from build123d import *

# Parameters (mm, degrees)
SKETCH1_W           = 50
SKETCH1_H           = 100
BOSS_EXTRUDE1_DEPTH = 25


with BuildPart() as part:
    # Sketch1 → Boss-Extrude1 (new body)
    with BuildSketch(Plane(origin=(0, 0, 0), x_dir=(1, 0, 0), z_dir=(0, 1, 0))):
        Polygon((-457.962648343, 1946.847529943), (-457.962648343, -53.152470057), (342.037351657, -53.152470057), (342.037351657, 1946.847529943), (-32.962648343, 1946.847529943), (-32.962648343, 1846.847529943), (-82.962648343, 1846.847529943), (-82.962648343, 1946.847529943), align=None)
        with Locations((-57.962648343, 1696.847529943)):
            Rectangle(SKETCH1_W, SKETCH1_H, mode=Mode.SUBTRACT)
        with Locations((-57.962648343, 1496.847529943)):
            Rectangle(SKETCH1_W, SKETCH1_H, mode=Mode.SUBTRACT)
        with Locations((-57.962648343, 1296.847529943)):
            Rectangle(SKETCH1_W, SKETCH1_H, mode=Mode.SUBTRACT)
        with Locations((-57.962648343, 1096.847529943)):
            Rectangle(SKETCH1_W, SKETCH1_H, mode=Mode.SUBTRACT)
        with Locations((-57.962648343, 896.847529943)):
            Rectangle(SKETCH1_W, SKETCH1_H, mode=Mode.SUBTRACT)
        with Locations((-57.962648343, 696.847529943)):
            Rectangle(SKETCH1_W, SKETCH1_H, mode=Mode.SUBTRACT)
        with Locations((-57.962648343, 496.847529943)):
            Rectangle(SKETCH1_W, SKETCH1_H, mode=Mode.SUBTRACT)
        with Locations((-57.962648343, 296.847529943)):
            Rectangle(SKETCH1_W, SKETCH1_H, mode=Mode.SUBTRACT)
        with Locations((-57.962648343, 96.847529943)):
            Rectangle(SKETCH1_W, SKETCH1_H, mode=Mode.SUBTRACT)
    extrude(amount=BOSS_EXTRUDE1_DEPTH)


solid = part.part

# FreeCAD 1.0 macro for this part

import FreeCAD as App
import Part
import Sketcher
Q = App.Units.Quantity

doc = App.newDocument("Part")
body = doc.addObject("PartDesign::Body", "Body")

# Sketch on XZ plane
sketch1 = body.newObject("Sketcher::SketchObject", "Sketch")
sketch1.AttachmentSupport = (doc.getObject("XZ_Plane"), [""])
sketch1.MapMode = "FlatFace"
sketch1.addGeometry(Part.LineSegment(App.Vector(-457.962648, -1946.84753, 0), App.Vector(-457.962648, 53.15247, 0)), False)
sketch1.addGeometry(Part.LineSegment(App.Vector(-457.962648, 53.15247, 0), App.Vector(342.037352, 53.15247, 0)), False)
sketch1.addGeometry(Part.LineSegment(App.Vector(342.037352, 53.15247, 0), App.Vector(342.037352, -1946.84753, 0)), False)
sketch1.addGeometry(Part.LineSegment(App.Vector(342.037352, -1946.84753, 0), App.Vector(-32.962648, -1946.84753, 0)), False)
sketch1.addGeometry(Part.LineSegment(App.Vector(-32.962648, -1946.84753, 0), App.Vector(-32.962648, -1846.84753, 0)), False)
sketch1.addGeometry(Part.LineSegment(App.Vector(-32.962648, -1846.84753, 0), App.Vector(-82.962648, -1846.84753, 0)), False)
sketch1.addGeometry(Part.LineSegment(App.Vector(-82.962648, -1846.84753, 0), App.Vector(-82.962648, -1946.84753, 0)), False)
sketch1.addGeometry(Part.LineSegment(App.Vector(-82.962648, -1946.84753, 0), App.Vector(-457.962648, -1946.84753, 0)), False)
sketch1.addGeometry(Part.LineSegment(App.Vector(-32.962648, -46.84753, 0), App.Vector(-82.962648, -46.84753, 0)), False)
sketch1.addGeometry(Part.LineSegment(App.Vector(-82.962648, -46.84753, 0), App.Vector(-82.962648, -146.84753, 0)), False)
sketch1.addGeometry(Part.LineSegment(App.Vector(-82.962648, -146.84753, 0), App.Vector(-32.962648, -146.84753, 0)), False)
sketch1.addGeometry(Part.LineSegment(App.Vector(-32.962648, -146.84753, 0), App.Vector(-32.962648, -46.84753, 0)), False)
sketch1.addGeometry(Part.LineSegment(App.Vector(-32.962648, -246.84753, 0), App.Vector(-82.962648, -246.84753, 0)), False)
sketch1.addGeometry(Part.LineSegment(App.Vector(-82.962648, -246.84753, 0), App.Vector(-82.962648, -346.84753, 0)), False)
sketch1.addGeometry(Part.LineSegment(App.Vector(-82.962648, -346.84753, 0), App.Vector(-32.962648, -346.84753, 0)), False)
sketch1.addGeometry(Part.LineSegment(App.Vector(-32.962648, -346.84753, 0), App.Vector(-32.962648, -246.84753, 0)), False)
sketch1.addGeometry(Part.LineSegment(App.Vector(-32.962648, -446.84753, 0), App.Vector(-82.962648, -446.84753, 0)), False)
sketch1.addGeometry(Part.LineSegment(App.Vector(-82.962648, -446.84753, 0), App.Vector(-82.962648, -546.84753, 0)), False)
sketch1.addGeometry(Part.LineSegment(App.Vector(-82.962648, -546.84753, 0), App.Vector(-32.962648, -546.84753, 0)), False)
sketch1.addGeometry(Part.LineSegment(App.Vector(-32.962648, -546.84753, 0), App.Vector(-32.962648, -446.84753, 0)), False)
sketch1.addGeometry(Part.LineSegment(App.Vector(-32.962648, -646.84753, 0), App.Vector(-82.962648, -646.84753, 0)), False)
sketch1.addGeometry(Part.LineSegment(App.Vector(-82.962648, -646.84753, 0), App.Vector(-82.962648, -746.84753, 0)), False)
sketch1.addGeometry(Part.LineSegment(App.Vector(-82.962648, -746.84753, 0), App.Vector(-32.962648, -746.84753, 0)), False)
sketch1.addGeometry(Part.LineSegment(App.Vector(-32.962648, -746.84753, 0), App.Vector(-32.962648, -646.84753, 0)), False)
sketch1.addGeometry(Part.LineSegment(App.Vector(-32.962648, -846.84753, 0), App.Vector(-82.962648, -846.84753, 0)), False)
sketch1.addGeometry(Part.LineSegment(App.Vector(-82.962648, -846.84753, 0), App.Vector(-82.962648, -946.84753, 0)), False)
sketch1.addGeometry(Part.LineSegment(App.Vector(-82.962648, -946.84753, 0), App.Vector(-32.962648, -946.84753, 0)), False)
sketch1.addGeometry(Part.LineSegment(App.Vector(-32.962648, -946.84753, 0), App.Vector(-32.962648, -846.84753, 0)), False)
sketch1.addGeometry(Part.LineSegment(App.Vector(-32.962648, -1046.84753, 0), App.Vector(-82.962648, -1046.84753, 0)), False)
sketch1.addGeometry(Part.LineSegment(App.Vector(-82.962648, -1046.84753, 0), App.Vector(-82.962648, -1146.84753, 0)), False)
sketch1.addGeometry(Part.LineSegment(App.Vector(-82.962648, -1146.84753, 0), App.Vector(-32.962648, -1146.84753, 0)), False)
sketch1.addGeometry(Part.LineSegment(App.Vector(-32.962648, -1146.84753, 0), App.Vector(-32.962648, -1046.84753, 0)), False)
sketch1.addGeometry(Part.LineSegment(App.Vector(-32.962648, -1246.84753, 0), App.Vector(-82.962648, -1246.84753, 0)), False)
sketch1.addGeometry(Part.LineSegment(App.Vector(-82.962648, -1246.84753, 0), App.Vector(-82.962648, -1346.84753, 0)), False)
sketch1.addGeometry(Part.LineSegment(App.Vector(-82.962648, -1346.84753, 0), App.Vector(-32.962648, -1346.84753, 0)), False)
sketch1.addGeometry(Part.LineSegment(App.Vector(-32.962648, -1346.84753, 0), App.Vector(-32.962648, -1246.84753, 0)), False)
sketch1.addGeometry(Part.LineSegment(App.Vector(-32.962648, -1446.84753, 0), App.Vector(-82.962648, -1446.84753, 0)), False)
sketch1.addGeometry(Part.LineSegment(App.Vector(-82.962648, -1446.84753, 0), App.Vector(-82.962648, -1546.84753, 0)), False)
sketch1.addGeometry(Part.LineSegment(App.Vector(-82.962648, -1546.84753, 0), App.Vector(-32.962648, -1546.84753, 0)), False)
sketch1.addGeometry(Part.LineSegment(App.Vector(-32.962648, -1546.84753, 0), App.Vector(-32.962648, -1446.84753, 0)), False)
sketch1.addGeometry(Part.LineSegment(App.Vector(-32.962648, -1646.84753, 0), App.Vector(-82.962648, -1646.84753, 0)), False)
sketch1.addGeometry(Part.LineSegment(App.Vector(-82.962648, -1646.84753, 0), App.Vector(-82.962648, -1746.84753, 0)), False)
sketch1.addGeometry(Part.LineSegment(App.Vector(-82.962648, -1746.84753, 0), App.Vector(-32.962648, -1746.84753, 0)), False)
sketch1.addGeometry(Part.LineSegment(App.Vector(-32.962648, -1746.84753, 0), App.Vector(-32.962648, -1646.84753, 0)), False)
sketch1.addConstraint(Sketcher.Constraint("Coincident", 0, 2, 1, 1))
sketch1.addConstraint(Sketcher.Constraint("Coincident", 1, 2, 2, 1))
sketch1.addConstraint(Sketcher.Constraint("Coincident", 2, 2, 3, 1))
sketch1.addConstraint(Sketcher.Constraint("Coincident", 3, 2, 4, 1))
sketch1.addConstraint(Sketcher.Constraint("Coincident", 4, 2, 5, 1))
sketch1.addConstraint(Sketcher.Constraint("Coincident", 5, 2, 6, 1))
sketch1.addConstraint(Sketcher.Constraint("Coincident", 6, 2, 7, 1))
sketch1.addConstraint(Sketcher.Constraint("Coincident", 7, 2, 0, 1))
sketch1.addConstraint(Sketcher.Constraint("Coincident", 8, 2, 9, 1))
sketch1.addConstraint(Sketcher.Constraint("Coincident", 9, 2, 10, 1))
sketch1.addConstraint(Sketcher.Constraint("Coincident", 10, 2, 11, 1))
sketch1.addConstraint(Sketcher.Constraint("Coincident", 11, 2, 8, 1))
sketch1.addConstraint(Sketcher.Constraint("Coincident", 12, 2, 13, 1))
sketch1.addConstraint(Sketcher.Constraint("Coincident", 13, 2, 14, 1))
sketch1.addConstraint(Sketcher.Constraint("Coincident", 14, 2, 15, 1))
sketch1.addConstraint(Sketcher.Constraint("Coincident", 15, 2, 12, 1))
sketch1.addConstraint(Sketcher.Constraint("Coincident", 16, 2, 17, 1))
sketch1.addConstraint(Sketcher.Constraint("Coincident", 17, 2, 18, 1))
sketch1.addConstraint(Sketcher.Constraint("Coincident", 18, 2, 19, 1))
sketch1.addConstraint(Sketcher.Constraint("Coincident", 19, 2, 16, 1))
sketch1.addConstraint(Sketcher.Constraint("Coincident", 20, 2, 21, 1))
sketch1.addConstraint(Sketcher.Constraint("Coincident", 21, 2, 22, 1))
sketch1.addConstraint(Sketcher.Constraint("Coincident", 22, 2, 23, 1))
sketch1.addConstraint(Sketcher.Constraint("Coincident", 23, 2, 20, 1))
sketch1.addConstraint(Sketcher.Constraint("Coincident", 24, 2, 25, 1))
sketch1.addConstraint(Sketcher.Constraint("Coincident", 25, 2, 26, 1))
sketch1.addConstraint(Sketcher.Constraint("Coincident", 26, 2, 27, 1))
sketch1.addConstraint(Sketcher.Constraint("Coincident", 27, 2, 24, 1))
sketch1.addConstraint(Sketcher.Constraint("Coincident", 28, 2, 29, 1))
sketch1.addConstraint(Sketcher.Constraint("Coincident", 29, 2, 30, 1))
sketch1.addConstraint(Sketcher.Constraint("Coincident", 30, 2, 31, 1))
sketch1.addConstraint(Sketcher.Constraint("Coincident", 31, 2, 28, 1))
sketch1.addConstraint(Sketcher.Constraint("Coincident", 32, 2, 33, 1))
sketch1.addConstraint(Sketcher.Constraint("Coincident", 33, 2, 34, 1))
sketch1.addConstraint(Sketcher.Constraint("Coincident", 34, 2, 35, 1))
sketch1.addConstraint(Sketcher.Constraint("Coincident", 35, 2, 32, 1))
sketch1.addConstraint(Sketcher.Constraint("Coincident", 36, 2, 37, 1))
sketch1.addConstraint(Sketcher.Constraint("Coincident", 37, 2, 38, 1))
sketch1.addConstraint(Sketcher.Constraint("Coincident", 38, 2, 39, 1))
sketch1.addConstraint(Sketcher.Constraint("Coincident", 39, 2, 36, 1))
sketch1.addConstraint(Sketcher.Constraint("Coincident", 40, 2, 41, 1))
sketch1.addConstraint(Sketcher.Constraint("Coincident", 41, 2, 42, 1))
sketch1.addConstraint(Sketcher.Constraint("Coincident", 42, 2, 43, 1))
sketch1.addConstraint(Sketcher.Constraint("Coincident", 43, 2, 40, 1))
sketch1.addConstraint(Sketcher.Constraint("Vertical", 0))
sketch1.addConstraint(Sketcher.Constraint("Horizontal", 1))
sketch1.addConstraint(Sketcher.Constraint("Vertical", 2))
sketch1.addConstraint(Sketcher.Constraint("Horizontal", 3))
sketch1.addConstraint(Sketcher.Constraint("Vertical", 4))
sketch1.addConstraint(Sketcher.Constraint("Horizontal", 5))
sketch1.addConstraint(Sketcher.Constraint("Vertical", 6))
sketch1.addConstraint(Sketcher.Constraint("Horizontal", 7))
sketch1.addConstraint(Sketcher.Constraint("Horizontal", 8))
sketch1.addConstraint(Sketcher.Constraint("Vertical", 9))
sketch1.addConstraint(Sketcher.Constraint("Horizontal", 10))
sketch1.addConstraint(Sketcher.Constraint("Vertical", 11))
sketch1.addConstraint(Sketcher.Constraint("Horizontal", 12))
sketch1.addConstraint(Sketcher.Constraint("Vertical", 13))
sketch1.addConstraint(Sketcher.Constraint("Horizontal", 14))
sketch1.addConstraint(Sketcher.Constraint("Vertical", 15))
sketch1.addConstraint(Sketcher.Constraint("Horizontal", 16))
sketch1.addConstraint(Sketcher.Constraint("Vertical", 17))
sketch1.addConstraint(Sketcher.Constraint("Horizontal", 18))
sketch1.addConstraint(Sketcher.Constraint("Vertical", 19))
sketch1.addConstraint(Sketcher.Constraint("Horizontal", 20))
sketch1.addConstraint(Sketcher.Constraint("Vertical", 21))
sketch1.addConstraint(Sketcher.Constraint("Horizontal", 22))
sketch1.addConstraint(Sketcher.Constraint("Vertical", 23))
sketch1.addConstraint(Sketcher.Constraint("Horizontal", 24))
sketch1.addConstraint(Sketcher.Constraint("Vertical", 25))
sketch1.addConstraint(Sketcher.Constraint("Horizontal", 26))
sketch1.addConstraint(Sketcher.Constraint("Vertical", 27))
sketch1.addConstraint(Sketcher.Constraint("Horizontal", 28))
sketch1.addConstraint(Sketcher.Constraint("Vertical", 29))
sketch1.addConstraint(Sketcher.Constraint("Horizontal", 30))
sketch1.addConstraint(Sketcher.Constraint("Vertical", 31))
sketch1.addConstraint(Sketcher.Constraint("Horizontal", 32))
sketch1.addConstraint(Sketcher.Constraint("Vertical", 33))
sketch1.addConstraint(Sketcher.Constraint("Horizontal", 34))
sketch1.addConstraint(Sketcher.Constraint("Vertical", 35))
sketch1.addConstraint(Sketcher.Constraint("Horizontal", 36))
sketch1.addConstraint(Sketcher.Constraint("Vertical", 37))
sketch1.addConstraint(Sketcher.Constraint("Horizontal", 38))
sketch1.addConstraint(Sketcher.Constraint("Vertical", 39))
sketch1.addConstraint(Sketcher.Constraint("Horizontal", 40))
sketch1.addConstraint(Sketcher.Constraint("Vertical", 41))
sketch1.addConstraint(Sketcher.Constraint("Horizontal", 42))
sketch1.addConstraint(Sketcher.Constraint("Vertical", 43))
sketch1.addConstraint(Sketcher.Constraint("Horizontal", 3, 2, 6, 2))
sketch1.addConstraint(Sketcher.Constraint("Vertical", 6, 2, 8, 2))
sketch1.addConstraint(Sketcher.Constraint("Vertical", 4, 2, 10, 2))
sketch1.addConstraint(Sketcher.Constraint("Vertical", 9, 2, 12, 2))
sketch1.addConstraint(Sketcher.Constraint("Vertical", 11, 2, 14, 2))
sketch1.addConstraint(Sketcher.Constraint("Vertical", 13, 2, 16, 2))
sketch1.addConstraint(Sketcher.Constraint("Vertical", 15, 2, 18, 2))
sketch1.addConstraint(Sketcher.Constraint("Vertical", 17, 2, 20, 2))
sketch1.addConstraint(Sketcher.Constraint("Vertical", 19, 2, 22, 2))
sketch1.addConstraint(Sketcher.Constraint("Vertical", 21, 2, 24, 2))
sketch1.addConstraint(Sketcher.Constraint("Vertical", 23, 2, 26, 2))
sketch1.addConstraint(Sketcher.Constraint("Vertical", 25, 2, 28, 2))
sketch1.addConstraint(Sketcher.Constraint("Vertical", 27, 2, 30, 2))
sketch1.addConstraint(Sketcher.Constraint("Vertical", 29, 2, 32, 2))
sketch1.addConstraint(Sketcher.Constraint("Vertical", 31, 2, 34, 2))
sketch1.addConstraint(Sketcher.Constraint("Vertical", 33, 2, 36, 2))
sketch1.addConstraint(Sketcher.Constraint("Vertical", 35, 2, 38, 2))
sketch1.addConstraint(Sketcher.Constraint("Vertical", 37, 2, 40, 2))
sketch1.addConstraint(Sketcher.Constraint("Vertical", 39, 2, 42, 2))
sketch1.addConstraint(Sketcher.Constraint("Equal", 3, 7))
sketch1.addConstraint(Sketcher.Constraint("Equal", 6, 9))
sketch1.addConstraint(Sketcher.Constraint("Equal", 11, 13))
sketch1.addConstraint(Sketcher.Constraint("Equal", 15, 17))
sketch1.addConstraint(Sketcher.Constraint("Equal", 19, 21))
sketch1.addConstraint(Sketcher.Constraint("Equal", 23, 25))
sketch1.addConstraint(Sketcher.Constraint("Equal", 27, 29))
sketch1.addConstraint(Sketcher.Constraint("Equal", 31, 33))
sketch1.addConstraint(Sketcher.Constraint("Equal", 35, 37))
sketch1.addConstraint(Sketcher.Constraint("Equal", 39, 41))
sketch1.addConstraint(Sketcher.Constraint("DistanceX", 1, 1, 1, 2, Q("800 mm")))
sketch1.addConstraint(Sketcher.Constraint("DistanceX", 3, 2, 3, 1, Q("375 mm")))
sketch1.addConstraint(Sketcher.Constraint("DistanceY", 0, 1, 0, 2, Q("2000 mm")))
sketch1.addConstraint(Sketcher.Constraint("DistanceY", 4, 1, 4, 2, Q("100 mm")))
sketch1.addConstraint(Sketcher.Constraint("DistanceY", 8, 2, 0, 2, Q("100 mm")))
sketch1.addConstraint(Sketcher.Constraint("DistanceY", 12, 2, 9, 2, Q("100 mm")))
sketch1.addConstraint(Sketcher.Constraint("DistanceY", 16, 2, 13, 2, Q("100 mm")))
sketch1.addConstraint(Sketcher.Constraint("DistanceY", 20, 2, 17, 2, Q("100 mm")))
sketch1.addConstraint(Sketcher.Constraint("DistanceY", 24, 2, 21, 2, Q("100 mm")))
sketch1.addConstraint(Sketcher.Constraint("DistanceY", 28, 2, 25, 2, Q("100 mm")))
sketch1.addConstraint(Sketcher.Constraint("DistanceY", 32, 2, 29, 2, Q("100 mm")))
sketch1.addConstraint(Sketcher.Constraint("DistanceY", 36, 2, 33, 2, Q("100 mm")))
sketch1.addConstraint(Sketcher.Constraint("DistanceY", 40, 2, 37, 2, Q("100 mm")))
sketch1.addConstraint(Sketcher.Constraint("DistanceX", 0, 2, -1, 1, Q("457.962648 mm")))
sketch1.addConstraint(Sketcher.Constraint("DistanceY", -1, 1, 0, 2, Q("53.15247 mm")))
pad1 = body.newObject("PartDesign::Pad", "Pad")
pad1.Profile = sketch1
pad1.Length = 25
pad1.Reversed = True

doc.recompute()
